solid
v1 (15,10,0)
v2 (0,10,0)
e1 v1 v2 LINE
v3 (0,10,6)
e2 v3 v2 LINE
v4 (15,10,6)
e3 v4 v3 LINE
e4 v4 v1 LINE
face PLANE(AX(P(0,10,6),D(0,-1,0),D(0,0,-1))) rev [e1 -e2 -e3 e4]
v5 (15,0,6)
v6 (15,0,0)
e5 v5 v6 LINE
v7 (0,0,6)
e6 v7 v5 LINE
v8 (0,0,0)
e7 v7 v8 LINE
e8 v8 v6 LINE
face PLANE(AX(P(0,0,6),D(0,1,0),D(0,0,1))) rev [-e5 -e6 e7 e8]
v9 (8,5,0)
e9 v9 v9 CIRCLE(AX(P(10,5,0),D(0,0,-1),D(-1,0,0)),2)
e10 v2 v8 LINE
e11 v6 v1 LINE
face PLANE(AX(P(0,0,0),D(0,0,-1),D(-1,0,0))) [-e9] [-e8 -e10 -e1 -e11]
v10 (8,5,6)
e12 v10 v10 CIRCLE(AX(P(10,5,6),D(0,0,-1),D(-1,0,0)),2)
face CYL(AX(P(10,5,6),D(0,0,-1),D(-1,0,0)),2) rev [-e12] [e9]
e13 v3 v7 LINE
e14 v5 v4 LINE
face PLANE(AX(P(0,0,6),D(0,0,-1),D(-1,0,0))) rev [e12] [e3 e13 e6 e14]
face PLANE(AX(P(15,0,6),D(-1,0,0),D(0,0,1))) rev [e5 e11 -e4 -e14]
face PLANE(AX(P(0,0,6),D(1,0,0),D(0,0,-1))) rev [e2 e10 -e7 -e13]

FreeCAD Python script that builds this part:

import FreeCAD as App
import Part
import Sketcher
from FreeCAD import Vector

doc = App.newDocument("Part")
body = doc.addObject("PartDesign::Body", "Body")

# Sketch on XY plane
sketch1 = body.newObject("Sketcher::SketchObject", "Sketch")
sketch1.AttachmentSupport = (doc.getObject("XY_Plane"), [""])
sketch1.MapMode = "FlatFace"
sketch1.addGeometry(Part.LineSegment(Vector(0, 10, 0), Vector(0, 0, 0)), False)
sketch1.addGeometry(Part.LineSegment(Vector(0, 0, 0), Vector(15, 0, 0)), False)
sketch1.addGeometry(Part.LineSegment(Vector(15, 0, 0), Vector(15, 10, 0)), False)
sketch1.addGeometry(Part.LineSegment(Vector(15, 10, 0), Vector(0, 10, 0)), False)
sketch1.addConstraint(Sketcher.Constraint("Coincident", 0, 2, 1, 1))
sketch1.addConstraint(Sketcher.Constraint("Coincident", 1, 2, 2, 1))
sketch1.addConstraint(Sketcher.Constraint("Coincident", 2, 2, 3, 1))
sketch1.addConstraint(Sketcher.Constraint("Coincident", 3, 2, 0, 1))
sketch1.addConstraint(Sketcher.Constraint("Vertical", 0))
sketch1.addConstraint(Sketcher.Constraint("Horizontal", 1))
sketch1.addConstraint(Sketcher.Constraint("Vertical", 2))
sketch1.addConstraint(Sketcher.Constraint("Horizontal", 3))
sketch1.addConstraint(Sketcher.Constraint("Coincident", 0, 2, -1, 1))
sketch1.addConstraint(Sketcher.Constraint("DistanceX", 1, 1, 1, 2, 15.0))
sketch1.addConstraint(Sketcher.Constraint("DistanceY", 0, 2, 0, 1, 10.0))
pad1 = body.newObject("PartDesign::Pad", "Pad")
pad1.Profile = sketch1
pad1.Length = 6

# Sketch on XY plane
sketch2 = body.newObject("Sketcher::SketchObject", "Sketch001")
sketch2.AttachmentSupport = (doc.getObject("XY_Plane"), [""])
sketch2.MapMode = "FlatFace"
sketch2.addGeometry(Part.Circle(Vector(10, 5, 0), Vector(0, 0, 1), 2), False)
sketch2.addConstraint(Sketcher.Constraint("Diameter", 0, 4.0))
sketch2.addConstraint(Sketcher.Constraint("DistanceX", -1, 1, 0, 3, 10.0))
sketch2.addConstraint(Sketcher.Constraint("DistanceY", -1, 1, 0, 3, 5.0))
pocket1 = body.newObject("PartDesign::Pocket", "Pocket")
pocket1.Profile = sketch2
pocket1.Length = 6
pocket1.Reversed = True

doc.recompute()
